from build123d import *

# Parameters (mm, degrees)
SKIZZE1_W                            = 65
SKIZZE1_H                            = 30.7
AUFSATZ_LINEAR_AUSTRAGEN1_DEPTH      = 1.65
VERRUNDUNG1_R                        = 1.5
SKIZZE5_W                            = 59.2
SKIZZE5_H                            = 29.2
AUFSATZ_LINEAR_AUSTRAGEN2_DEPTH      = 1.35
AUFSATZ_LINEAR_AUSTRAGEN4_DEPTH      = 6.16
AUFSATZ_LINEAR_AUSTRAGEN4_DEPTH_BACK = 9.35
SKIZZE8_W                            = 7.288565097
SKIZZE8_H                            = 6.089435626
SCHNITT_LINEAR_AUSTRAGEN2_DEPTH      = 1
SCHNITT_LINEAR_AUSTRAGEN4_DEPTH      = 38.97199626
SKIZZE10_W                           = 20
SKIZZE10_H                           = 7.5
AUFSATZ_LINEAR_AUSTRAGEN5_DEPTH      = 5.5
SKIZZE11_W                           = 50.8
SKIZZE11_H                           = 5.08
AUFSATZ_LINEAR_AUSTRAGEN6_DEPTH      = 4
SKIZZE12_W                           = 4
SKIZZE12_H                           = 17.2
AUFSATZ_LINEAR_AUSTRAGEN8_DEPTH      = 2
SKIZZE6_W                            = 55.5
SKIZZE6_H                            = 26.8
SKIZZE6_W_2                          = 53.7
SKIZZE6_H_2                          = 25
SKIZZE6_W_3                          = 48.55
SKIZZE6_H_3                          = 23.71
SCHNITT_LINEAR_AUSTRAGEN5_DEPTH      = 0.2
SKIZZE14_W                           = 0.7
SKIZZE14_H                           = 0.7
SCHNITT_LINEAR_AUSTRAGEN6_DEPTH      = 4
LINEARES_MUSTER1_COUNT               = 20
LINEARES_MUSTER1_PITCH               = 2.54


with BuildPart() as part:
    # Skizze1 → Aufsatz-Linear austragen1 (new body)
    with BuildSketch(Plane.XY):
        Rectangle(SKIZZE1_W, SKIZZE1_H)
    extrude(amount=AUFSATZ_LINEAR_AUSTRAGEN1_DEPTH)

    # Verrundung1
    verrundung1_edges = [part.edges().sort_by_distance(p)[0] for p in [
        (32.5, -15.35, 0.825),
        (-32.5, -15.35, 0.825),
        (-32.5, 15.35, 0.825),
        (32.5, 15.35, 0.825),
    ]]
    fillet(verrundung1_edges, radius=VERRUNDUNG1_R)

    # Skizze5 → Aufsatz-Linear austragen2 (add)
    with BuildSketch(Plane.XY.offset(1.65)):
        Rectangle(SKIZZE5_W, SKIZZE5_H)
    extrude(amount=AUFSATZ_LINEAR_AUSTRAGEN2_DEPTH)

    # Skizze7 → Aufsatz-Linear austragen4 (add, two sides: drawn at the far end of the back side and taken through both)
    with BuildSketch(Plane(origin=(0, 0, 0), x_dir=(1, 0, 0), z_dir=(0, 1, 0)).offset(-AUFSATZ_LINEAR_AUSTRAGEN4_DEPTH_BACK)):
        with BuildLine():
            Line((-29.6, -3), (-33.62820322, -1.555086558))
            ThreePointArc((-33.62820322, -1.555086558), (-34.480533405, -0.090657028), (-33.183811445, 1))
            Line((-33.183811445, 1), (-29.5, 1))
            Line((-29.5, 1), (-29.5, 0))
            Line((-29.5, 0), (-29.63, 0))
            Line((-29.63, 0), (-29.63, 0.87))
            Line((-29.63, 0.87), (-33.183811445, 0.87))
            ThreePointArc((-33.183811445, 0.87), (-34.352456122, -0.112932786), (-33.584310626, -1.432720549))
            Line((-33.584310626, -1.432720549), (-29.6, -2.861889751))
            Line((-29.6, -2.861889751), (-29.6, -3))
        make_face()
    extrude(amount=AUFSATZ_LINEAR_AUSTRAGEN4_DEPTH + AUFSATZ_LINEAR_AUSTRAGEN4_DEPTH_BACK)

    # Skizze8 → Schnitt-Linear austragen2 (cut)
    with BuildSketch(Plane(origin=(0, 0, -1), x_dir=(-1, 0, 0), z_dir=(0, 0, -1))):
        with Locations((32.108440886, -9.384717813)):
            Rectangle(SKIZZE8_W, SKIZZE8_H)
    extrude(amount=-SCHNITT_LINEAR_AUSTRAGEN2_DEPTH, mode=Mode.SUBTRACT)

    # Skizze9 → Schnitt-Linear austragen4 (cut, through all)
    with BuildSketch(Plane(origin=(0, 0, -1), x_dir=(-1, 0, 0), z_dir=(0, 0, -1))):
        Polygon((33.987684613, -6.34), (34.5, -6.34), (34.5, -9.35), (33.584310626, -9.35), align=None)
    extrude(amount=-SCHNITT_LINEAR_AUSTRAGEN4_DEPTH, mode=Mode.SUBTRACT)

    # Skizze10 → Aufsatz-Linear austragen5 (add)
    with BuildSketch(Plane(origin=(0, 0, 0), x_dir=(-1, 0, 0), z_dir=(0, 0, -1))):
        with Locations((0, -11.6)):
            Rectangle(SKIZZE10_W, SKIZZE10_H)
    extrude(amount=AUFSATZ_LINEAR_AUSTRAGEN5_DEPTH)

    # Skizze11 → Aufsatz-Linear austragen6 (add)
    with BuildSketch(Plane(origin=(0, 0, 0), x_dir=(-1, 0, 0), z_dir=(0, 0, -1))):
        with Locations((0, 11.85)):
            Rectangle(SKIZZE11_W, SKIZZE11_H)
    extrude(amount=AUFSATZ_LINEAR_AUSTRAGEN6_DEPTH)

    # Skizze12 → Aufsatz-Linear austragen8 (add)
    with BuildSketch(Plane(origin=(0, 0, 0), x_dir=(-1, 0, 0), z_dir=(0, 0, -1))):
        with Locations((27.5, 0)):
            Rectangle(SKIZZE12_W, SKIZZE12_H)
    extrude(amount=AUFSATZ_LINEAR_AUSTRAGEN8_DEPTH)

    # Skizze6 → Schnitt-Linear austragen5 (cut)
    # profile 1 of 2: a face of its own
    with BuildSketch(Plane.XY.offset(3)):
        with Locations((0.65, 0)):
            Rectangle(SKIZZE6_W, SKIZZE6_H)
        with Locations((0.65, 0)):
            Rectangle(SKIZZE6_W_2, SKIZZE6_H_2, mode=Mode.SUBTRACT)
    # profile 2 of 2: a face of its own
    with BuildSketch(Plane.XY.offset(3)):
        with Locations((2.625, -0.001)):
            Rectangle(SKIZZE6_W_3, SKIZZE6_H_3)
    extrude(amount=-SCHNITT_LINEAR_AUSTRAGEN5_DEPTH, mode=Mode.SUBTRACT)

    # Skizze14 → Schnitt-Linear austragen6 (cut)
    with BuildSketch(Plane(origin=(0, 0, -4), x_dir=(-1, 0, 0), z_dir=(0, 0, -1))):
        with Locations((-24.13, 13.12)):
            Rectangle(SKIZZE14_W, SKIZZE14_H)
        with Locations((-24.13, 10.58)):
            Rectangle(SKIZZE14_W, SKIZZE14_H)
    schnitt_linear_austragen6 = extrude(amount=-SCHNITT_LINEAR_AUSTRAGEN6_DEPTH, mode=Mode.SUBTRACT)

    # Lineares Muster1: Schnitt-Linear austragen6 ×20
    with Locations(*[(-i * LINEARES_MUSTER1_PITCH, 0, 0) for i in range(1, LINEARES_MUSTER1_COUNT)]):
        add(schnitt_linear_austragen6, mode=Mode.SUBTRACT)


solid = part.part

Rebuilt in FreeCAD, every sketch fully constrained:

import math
import FreeCAD as App
import Part
import Sketcher

V = App.Vector


def edges_at(feature, points):
    """Names of the edges that pass closest to the given points."""
    edges = feature.Shape.Edges
    near = lambda p: min(range(len(edges)), key=lambda i: edges[i].distToShape(Part.Vertex(*p))[0])
    return sorted({f"Edge{near(p) + 1}" for p in points})

doc = App.newDocument("Part")
body = doc.addObject("PartDesign::Body", "Body")

# Sketch on XY plane
sketch1 = body.newObject("Sketcher::SketchObject", "Sketch")
sketch1.AttachmentSupport = (doc.getObject("XY_Plane"), [""])
sketch1.MapMode = "FlatFace"
sketch1.addGeometry(Part.LineSegment(V(-32, 15, 0), V(-32, -15, 0)), False)
sketch1.addGeometry(Part.LineSegment(V(-32, -15, 0), V(32, -15, 0)), False)
sketch1.addGeometry(Part.LineSegment(V(32, -15, 0), V(32, 15, 0)), False)
sketch1.addGeometry(Part.LineSegment(V(32, 15, 0), V(-32, 15, 0)), False)
sketch1.addConstraint(Sketcher.Constraint("Coincident", 0, 2, 1, 1))
sketch1.addConstraint(Sketcher.Constraint("Coincident", 1, 2, 2, 1))
sketch1.addConstraint(Sketcher.Constraint("Coincident", 2, 2, 3, 1))
sketch1.addConstraint(Sketcher.Constraint("Coincident", 3, 2, 0, 1))
sketch1.addConstraint(Sketcher.Constraint("Vertical", 0))
sketch1.addConstraint(Sketcher.Constraint("Horizontal", 1))
sketch1.addConstraint(Sketcher.Constraint("Vertical", 2))
sketch1.addConstraint(Sketcher.Constraint("Horizontal", 3))
sketch1.addConstraint(Sketcher.Constraint("Symmetric", 0, 2, 2, 2, -1, 1))
sketch1.addConstraint(Sketcher.Constraint("DistanceX", 1, 1, 1, 2, 65.0))
sketch1.addConstraint(Sketcher.Constraint("DistanceY", 0, 2, 0, 1, 30.7))
pad1 = body.newObject("PartDesign::Pad", "Pad")
pad1.Profile = sketch1
pad1.Length = 1.65
doc.recompute()

fillet = body.newObject("PartDesign::Fillet", "Fillet")
fillet.Base = (pad1, edges_at(pad1, [
    (32.5, -15.35, 0.825),
    (-32.5, -15.35, 0.825),
    (-32.5, 15.35, 0.825),
    (32.5, 15.35, 0.825),
]))
fillet.Radius = 1.5

# Sketch on XY plane
sketch2 = body.newObject("Sketcher::SketchObject", "Sketch001")
sketch2.AttachmentSupport = (doc.getObject("XY_Plane"), [""])
sketch2.MapMode = "FlatFace"
sketch2.AttachmentOffset = App.Placement(V(0, 0, 1.65), App.Rotation())
sketch2.addGeometry(Part.LineSegment(V(-30, 15, 0), V(-30, -15, 0)), False)
sketch2.addGeometry(Part.LineSegment(V(-30, -15, 0), V(30, -15, 0)), False)
sketch2.addGeometry(Part.LineSegment(V(30, -15, 0), V(30, 15, 0)), False)
sketch2.addGeometry(Part.LineSegment(V(30, 15, 0), V(-30, 15, 0)), False)
sketch2.addConstraint(Sketcher.Constraint("Coincident", 0, 2, 1, 1))
sketch2.addConstraint(Sketcher.Constraint("Coincident", 1, 2, 2, 1))
sketch2.addConstraint(Sketcher.Constraint("Coincident", 2, 2, 3, 1))
sketch2.addConstraint(Sketcher.Constraint("Coincident", 3, 2, 0, 1))
sketch2.addConstraint(Sketcher.Constraint("Vertical", 0))
sketch2.addConstraint(Sketcher.Constraint("Horizontal", 1))
sketch2.addConstraint(Sketcher.Constraint("Vertical", 2))
sketch2.addConstraint(Sketcher.Constraint("Horizontal", 3))
sketch2.addConstraint(Sketcher.Constraint("Symmetric", 0, 2, 2, 2, -1, 1))
sketch2.addConstraint(Sketcher.Constraint("DistanceX", 1, 1, 1, 2, 59.2))
sketch2.addConstraint(Sketcher.Constraint("DistanceY", 0, 2, 0, 1, 29.2))
pad2 = body.newObject("PartDesign::Pad", "Pad001")
pad2.Profile = sketch2
pad2.Length = 1.35

# Sketch on XZ plane
sketch3 = body.newObject("Sketcher::SketchObject", "Sketch002")
sketch3.AttachmentSupport = (doc.getObject("XZ_Plane"), [""])
sketch3.MapMode = "FlatFace"
sketch3.addGeometry(Part.LineSegment(V(-33.63, 1.56, 0), V(-29.6, 3, 0)), False)
sketch3.addGeometry(Part.LineSegment(V(-29.6, 3, 0), V(-29.6, 2.86, 0)), False)
sketch3.addGeometry(Part.LineSegment(V(-29.6, 2.86, 0), V(-33.58, 1.43, 0)), False)
sketch3.addGeometry(Part.ArcOfCircle(Part.Circle(V(-33.18, 0.32, 0), V(0, 0, 1), 1.19), math.radians(110), math.radians(270)), False)
sketch3.addGeometry(Part.LineSegment(V(-33.18, -0.87, 0), V(-29.63, -0.87, 0)), False)
sketch3.addGeometry(Part.LineSegment(V(-29.63, -0.87, 0), V(-29.63, 0, 0)), False)
sketch3.addGeometry(Part.LineSegment(V(-29.63, 0, 0), V(-29.5, 0, 0)), False)
sketch3.addGeometry(Part.LineSegment(V(-29.5, 0, 0), V(-29.5, -1, 0)), False)
sketch3.addGeometry(Part.LineSegment(V(-29.5, -1, 0), V(-33.18, -1, 0)), False)
sketch3.addGeometry(Part.ArcOfCircle(Part.Circle(V(-33.18, 0.32, 0), V(0, 0, 1), 1.32), math.radians(110), math.radians(270)), False)
sketch3.addConstraint(Sketcher.Constraint("Coincident", 0, 2, 1, 1))
sketch3.addConstraint(Sketcher.Constraint("Coincident", 1, 2, 2, 1))
sketch3.addConstraint(Sketcher.Constraint("Tangent", 2, 2, 3, 1))
sketch3.addConstraint(Sketcher.Constraint("Tangent", 3, 2, 4, 1))
sketch3.addConstraint(Sketcher.Constraint("Coincident", 4, 2, 5, 1))
sketch3.addConstraint(Sketcher.Constraint("Coincident", 5, 2, 6, 1))
sketch3.addConstraint(Sketcher.Constraint("Coincident", 6, 2, 7, 1))
sketch3.addConstraint(Sketcher.Constraint("Coincident", 7, 2, 8, 1))
sketch3.addConstraint(Sketcher.Constraint("Tangent", 8, 2, 9, 2))
sketch3.addConstraint(Sketcher.Constraint("Tangent", 9, 1, 0, 1))
sketch3.addConstraint(Sketcher.Constraint("Vertical", 1))
sketch3.addConstraint(Sketcher.Constraint("Horizontal", 4))
sketch3.addConstraint(Sketcher.Constraint("Vertical", 5))
sketch3.addConstraint(Sketcher.Constraint("Horizontal", 6))
sketch3.addConstraint(Sketcher.Constraint("Vertical", 7))
sketch3.addConstraint(Sketcher.Constraint("Horizontal", 8))
sketch3.addConstraint(Sketcher.Constraint("Coincident", 9, 3, 3, 3))
sketch3.addConstraint(Sketcher.Constraint("PointOnObject", 5, 2, -1))
sketch3.addConstraint(Sketcher.Constraint("Parallel", 0, 2))
sketch3.addConstraint(Sketcher.Constraint("DistanceY", 7, 2, 7, 1, 1.0))
sketch3.addConstraint(Sketcher.Constraint("DistanceY", -1, 1, 0, 2, 3.0))
sketch3.addConstraint(Sketcher.Constraint("DistanceX", 6, 1, 6, 2, 0.13))
sketch3.addConstraint(Sketcher.Constraint("DistanceY", 5, 1, 5, 2, 0.87))
sketch3.addConstraint(Sketcher.Constraint("DistanceX", 0, 2, -1, 1, 29.6))
sketch3.addConstraint(Sketcher.Constraint("DistanceX", 6, 2, -1, 1, 29.5))
sketch3.addConstraint(Sketcher.Constraint("Radius", 3, 1.186189))
sketch3.addConstraint(Sketcher.Constraint("DistanceX", 4, 1, 4, 2, 3.553811))
pad3 = body.newObject("PartDesign::Pad", "Pad002")
pad3.Profile = sketch3
pad3.Type = "TwoLengths"
pad3.Length = 6.16
pad3.Length2 = 9.35
pad3.Reversed = True

# Sketch on XY plane
sketch4 = body.newObject("Sketcher::SketchObject", "Sketch003")
sketch4.AttachmentSupport = (doc.getObject("XY_Plane"), [""])
sketch4.MapMode = "FlatFace"
sketch4.AttachmentOffset = App.Placement(V(0, 0, -1), App.Rotation())
sketch4.addGeometry(Part.LineSegment(V(-28, -6, 0), V(-28, -12, 0)), False)
sketch4.addGeometry(Part.LineSegment(V(-28, -12, 0), V(-36, -12, 0)), False)
sketch4.addGeometry(Part.LineSegment(V(-36, -12, 0), V(-36, -6, 0)), False)
sketch4.addGeometry(Part.LineSegment(V(-36, -6, 0), V(-28, -6, 0)), False)
sketch4.addConstraint(Sketcher.Constraint("Coincident", 0, 2, 1, 1))
sketch4.addConstraint(Sketcher.Constraint("Coincident", 1, 2, 2, 1))
sketch4.addConstraint(Sketcher.Constraint("Coincident", 2, 2, 3, 1))
sketch4.addConstraint(Sketcher.Constraint("Coincident", 3, 2, 0, 1))
sketch4.addConstraint(Sketcher.Constraint("Vertical", 0))
sketch4.addConstraint(Sketcher.Constraint("Horizontal", 1))
sketch4.addConstraint(Sketcher.Constraint("Vertical", 2))
sketch4.addConstraint(Sketcher.Constraint("Horizontal", 3))
sketch4.addConstraint(Sketcher.Constraint("DistanceY", 2, 2, -1, 1, 6.34))
sketch4.addConstraint(Sketcher.Constraint("DistanceX", 1, 2, 1, 1, 7.288565))
sketch4.addConstraint(Sketcher.Constraint("DistanceY", 0, 2, 0, 1, 6.089436))
sketch4.addConstraint(Sketcher.Constraint("DistanceX", 0, 2, -1, 1, 28.464158))
pocket1 = body.newObject("PartDesign::Pocket", "Pocket")
pocket1.Profile = sketch4
pocket1.Length = 1
pocket1.Reversed = True

# Sketch on XY plane
sketch5 = body.newObject("Sketcher::SketchObject", "Sketch004")
sketch5.AttachmentSupport = (doc.getObject("XY_Plane"), [""])
sketch5.MapMode = "FlatFace"
sketch5.AttachmentOffset = App.Placement(V(0, 0, -1), App.Rotation())
sketch5.addGeometry(Part.LineSegment(V(-34.5, -6.3, 0), V(-34, -6.3, 0)), False)
sketch5.addGeometry(Part.LineSegment(V(-34, -6.3, 0), V(-33.6, -9.3, 0)), False)
sketch5.addGeometry(Part.LineSegment(V(-33.6, -9.3, 0), V(-34.5, -9.3, 0)), False)
sketch5.addGeometry(Part.LineSegment(V(-34.5, -9.3, 0), V(-34.5, -6.3, 0)), False)
sketch5.addConstraint(Sketcher.Constraint("Coincident", 0, 2, 1, 1))
sketch5.addConstraint(Sketcher.Constraint("Coincident", 1, 2, 2, 1))
sketch5.addConstraint(Sketcher.Constraint("Coincident", 2, 2, 3, 1))
sketch5.addConstraint(Sketcher.Constraint("Coincident", 3, 2, 0, 1))
sketch5.addConstraint(Sketcher.Constraint("Horizontal", 0))
sketch5.addConstraint(Sketcher.Constraint("Horizontal", 2))
sketch5.addConstraint(Sketcher.Constraint("Vertical", 3))
sketch5.addConstraint(Sketcher.Constraint("DistanceY", 3, 1, 3, 2, 3.01))
sketch5.addConstraint(Sketcher.Constraint("DistanceX", 2, 2, -1, 1, 34.5))
sketch5.addConstraint(Sketcher.Constraint("DistanceY", 0, 2, -1, 1, 6.34))
sketch5.addConstraint(Sketcher.Constraint("DistanceX", 2, 2, 2, 1, 0.915689))
sketch5.addConstraint(Sketcher.Constraint("Distance", 1, 3.036908))
pocket2 = body.newObject("PartDesign::Pocket", "Pocket001")
pocket2.Profile = sketch5
pocket2.Type = "ThroughAll"
pocket2.Reversed = True

# Sketch on XY plane
sketch6 = body.newObject("Sketcher::SketchObject", "Sketch005")
sketch6.AttachmentSupport = (doc.getObject("XY_Plane"), [""])
sketch6.MapMode = "FlatFace"
sketch6.addGeometry(Part.LineSegment(V(10, -8, 0), V(10, -15, 0)), False)
sketch6.addGeometry(Part.LineSegment(V(10, -15, 0), V(-10, -15, 0)), False)
sketch6.addGeometry(Part.LineSegment(V(-10, -15, 0), V(-10, -8, 0)), False)
sketch6.addGeometry(Part.LineSegment(V(-10, -8, 0), V(10, -8, 0)), False)
sketch6.addConstraint(Sketcher.Constraint("Coincident", 0, 2, 1, 1))
sketch6.addConstraint(Sketcher.Constraint("Coincident", 1, 2, 2, 1))
sketch6.addConstraint(Sketcher.Constraint("Coincident", 2, 2, 3, 1))
sketch6.addConstraint(Sketcher.Constraint("Coincident", 3, 2, 0, 1))
sketch6.addConstraint(Sketcher.Constraint("Vertical", 0))
sketch6.addConstraint(Sketcher.Constraint("Horizontal", 1))
sketch6.addConstraint(Sketcher.Constraint("Vertical", 2))
sketch6.addConstraint(Sketcher.Constraint("Horizontal", 3))
sketch6.addConstraint(Sketcher.Constraint("DistanceX", 1, 2, 1, 1, 20.0))
sketch6.addConstraint(Sketcher.Constraint("DistanceY", 0, 2, 0, 1, 7.5))
sketch6.addConstraint(Sketcher.Constraint("DistanceX", -1, 1, 0, 2, 10.0))
sketch6.addConstraint(Sketcher.Constraint("DistanceY", 0, 2, -1, 1, 15.35))
pad4 = body.newObject("PartDesign::Pad", "Pad003")
pad4.Profile = sketch6
pad4.Length = 5.5
pad4.Reversed = True

# Sketch on XY plane
sketch7 = body.newObject("Sketcher::SketchObject", "Sketch006")
sketch7.AttachmentSupport = (doc.getObject("XY_Plane"), [""])
sketch7.MapMode = "FlatFace"
sketch7.addGeometry(Part.LineSegment(V(25, 14, 0), V(25, 9, 0)), False)
sketch7.addGeometry(Part.LineSegment(V(25, 9, 0), V(-25, 9, 0)), False)
sketch7.addGeometry(Part.LineSegment(V(-25, 9, 0), V(-25, 14, 0)), False)
sketch7.addGeometry(Part.LineSegment(V(-25, 14, 0), V(25, 14, 0)), False)
sketch7.addConstraint(Sketcher.Constraint("Coincident", 0, 2, 1, 1))
sketch7.addConstraint(Sketcher.Constraint("Coincident", 1, 2, 2, 1))
sketch7.addConstraint(Sketcher.Constraint("Coincident", 2, 2, 3, 1))
sketch7.addConstraint(Sketcher.Constraint("Coincident", 3, 2, 0, 1))
sketch7.addConstraint(Sketcher.Constraint("Vertical", 0))
sketch7.addConstraint(Sketcher.Constraint("Horizontal", 1))
sketch7.addConstraint(Sketcher.Constraint("Vertical", 2))
sketch7.addConstraint(Sketcher.Constraint("Horizontal", 3))
sketch7.addConstraint(Sketcher.Constraint("DistanceX", 1, 2, 1, 1, 50.8))
sketch7.addConstraint(Sketcher.Constraint("DistanceY", 0, 2, 0, 1, 5.08))
sketch7.addConstraint(Sketcher.Constraint("DistanceX", -1, 1, 0, 2, 25.4))
sketch7.addConstraint(Sketcher.Constraint("DistanceY", -1, 1, 0, 2, 9.31))
pad5 = body.newObject("PartDesign::Pad", "Pad004")
pad5.Profile = sketch7
pad5.Length = 4
pad5.Reversed = True

# Sketch on XY plane
sketch8 = body.newObject("Sketcher::SketchObject", "Sketch007")
sketch8.AttachmentSupport = (doc.getObject("XY_Plane"), [""])
sketch8.MapMode = "FlatFace"
sketch8.addGeometry(Part.LineSegment(V(-25.5, 8.6, 0), V(-25.5, -8.6, 0)), False)
sketch8.addGeometry(Part.LineSegment(V(-25.5, -8.6, 0), V(-29.5, -8.6, 0)), False)
sketch8.addGeometry(Part.LineSegment(V(-29.5, -8.6, 0), V(-29.5, 8.6, 0)), False)
sketch8.addGeometry(Part.LineSegment(V(-29.5, 8.6, 0), V(-25.5, 8.6, 0)), False)
sketch8.addConstraint(Sketcher.Constraint("Coincident", 0, 2, 1, 1))
sketch8.addConstraint(Sketcher.Constraint("Coincident", 1, 2, 2, 1))
sketch8.addConstraint(Sketcher.Constraint("Coincident", 2, 2, 3, 1))
sketch8.addConstraint(Sketcher.Constraint("Coincident", 3, 2, 0, 1))
sketch8.addConstraint(Sketcher.Constraint("Vertical", 0))
sketch8.addConstraint(Sketcher.Constraint("Horizontal", 1))
sketch8.addConstraint(Sketcher.Constraint("Vertical", 2))
sketch8.addConstraint(Sketcher.Constraint("Horizontal", 3))
sketch8.addConstraint(Sketcher.Constraint("DistanceX", 1, 2, 1, 1, 4.0))
sketch8.addConstraint(Sketcher.Constraint("DistanceY", 0, 2, 0, 1, 17.2))
sketch8.addConstraint(Sketcher.Constraint("DistanceX", 0, 2, -1, 1, 25.5))
sketch8.addConstraint(Sketcher.Constraint("DistanceY", 0, 2, -1, 1, 8.6))
pad6 = body.newObject("PartDesign::Pad", "Pad005")
pad6.Profile = sketch8
pad6.Length = 2
pad6.Reversed = True

# Sketch on XY plane
sketch9 = body.newObject("Sketcher::SketchObject", "Sketch008")
sketch9.AttachmentSupport = (doc.getObject("XY_Plane"), [""])
sketch9.MapMode = "FlatFace"
sketch9.AttachmentOffset = App.Placement(V(0, 0, 3), App.Rotation())
sketch9.addGeometry(Part.LineSegment(V(-27, 13, 0), V(-27, -13, 0)), False)
sketch9.addGeometry(Part.LineSegment(V(-27, -13, 0), V(28, -13, 0)), False)
sketch9.addGeometry(Part.LineSegment(V(28, -13, 0), V(28, 13, 0)), False)
sketch9.addGeometry(Part.LineSegment(V(28, 13, 0), V(-27, 13, 0)), False)
sketch9.addGeometry(Part.LineSegment(V(28, -12, 0), V(-26, -12, 0)), False)
sketch9.addGeometry(Part.LineSegment(V(-26, -12, 0), V(-26, 12, 0)), False)
sketch9.addGeometry(Part.LineSegment(V(-26, 12, 0), V(28, 12, 0)), False)
sketch9.addGeometry(Part.LineSegment(V(28, 12, 0), V(28, -12, 0)), False)
sketch9.addGeometry(Part.LineSegment(V(-22, 12, 0), V(-22, -12, 0)), False)
sketch9.addGeometry(Part.LineSegment(V(-22, -12, 0), V(27, -12, 0)), False)
sketch9.addGeometry(Part.LineSegment(V(27, -12, 0), V(27, 12, 0)), False)
sketch9.addGeometry(Part.LineSegment(V(27, 12, 0), V(-22, 12, 0)), False)
sketch9.addConstraint(Sketcher.Constraint("Coincident", 0, 2, 1, 1))
sketch9.addConstraint(Sketcher.Constraint("Coincident", 1, 2, 2, 1))
sketch9.addConstraint(Sketcher.Constraint("Coincident", 2, 2, 3, 1))
sketch9.addConstraint(Sketcher.Constraint("Coincident", 3, 2, 0, 1))
sketch9.addConstraint(Sketcher.Constraint("Coincident", 4, 2, 5, 1))
sketch9.addConstraint(Sketcher.Constraint("Coincident", 5, 2, 6, 1))
sketch9.addConstraint(Sketcher.Constraint("Coincident", 6, 2, 7, 1))
sketch9.addConstraint(Sketcher.Constraint("Coincident", 7, 2, 4, 1))
sketch9.addConstraint(Sketcher.Constraint("Coincident", 8, 2, 9, 1))
sketch9.addConstraint(Sketcher.Constraint("Coincident", 9, 2, 10, 1))
sketch9.addConstraint(Sketcher.Constraint("Coincident", 10, 2, 11, 1))
sketch9.addConstraint(Sketcher.Constraint("Coincident", 11, 2, 8, 1))
sketch9.addConstraint(Sketcher.Constraint("Vertical", 0))
sketch9.addConstraint(Sketcher.Constraint("Horizontal", 1))
sketch9.addConstraint(Sketcher.Constraint("Vertical", 2))
sketch9.addConstraint(Sketcher.Constraint("Horizontal", 3))
sketch9.addConstraint(Sketcher.Constraint("Horizontal", 4))
sketch9.addConstraint(Sketcher.Constraint("Vertical", 5))
sketch9.addConstraint(Sketcher.Constraint("Horizontal", 6))
sketch9.addConstraint(Sketcher.Constraint("Vertical", 7))
sketch9.addConstraint(Sketcher.Constraint("Vertical", 8))
sketch9.addConstraint(Sketcher.Constraint("Horizontal", 9))
sketch9.addConstraint(Sketcher.Constraint("Vertical", 10))
sketch9.addConstraint(Sketcher.Constraint("Horizontal", 11))
sketch9.addConstraint(Sketcher.Constraint("DistanceY", 5, 1, 5, 2, 25.0))
sketch9.addConstraint(Sketcher.Constraint("DistanceX", 1, 1, 1, 2, 55.5))
sketch9.addConstraint(Sketcher.Constraint("DistanceX", 4, 2, 4, 1, 53.7))
sketch9.addConstraint(Sketcher.Constraint("DistanceY", 0, 2, 0, 1, 26.8))
sketch9.addConstraint(Sketcher.Constraint("DistanceX", 9, 1, 9, 2, 48.55))
sketch9.addConstraint(Sketcher.Constraint("DistanceY", 8, 2, 8, 1, 23.71))
sketch9.addConstraint(Sketcher.Constraint("DistanceX", 0, 2, -1, 1, 27.1))
sketch9.addConstraint(Sketcher.Constraint("DistanceY", 0, 2, -1, 1, 13.4))
sketch9.addConstraint(Sketcher.Constraint("DistanceX", 4, 2, -1, 1, 26.2))
sketch9.addConstraint(Sketcher.Constraint("DistanceY", 4, 2, -1, 1, 12.5))
sketch9.addConstraint(Sketcher.Constraint("DistanceX", -1, 1, 9, 2, 26.9))
sketch9.addConstraint(Sketcher.Constraint("DistanceY", 8, 2, -1, 1, 11.856))
pocket3 = body.newObject("PartDesign::Pocket", "Pocket002")
pocket3.Profile = sketch9
pocket3.Length = 0.2

# Sketch on XY plane
sketch10 = body.newObject("Sketcher::SketchObject", "Sketch009")
sketch10.AttachmentSupport = (doc.getObject("XY_Plane"), [""])
sketch10.MapMode = "FlatFace"
sketch10.AttachmentOffset = App.Placement(V(0, 0, -4), App.Rotation())
sketch10.addGeometry(Part.LineSegment(V(24.5, 13.5, 0), V(24.5, 12.8, 0)), False)
sketch10.addGeometry(Part.LineSegment(V(24.5, 12.8, 0), V(23.8, 12.8, 0)), False)
sketch10.addGeometry(Part.LineSegment(V(23.8, 12.8, 0), V(23.8, 13.5, 0)), False)
sketch10.addGeometry(Part.LineSegment(V(23.8, 13.5, 0), V(24.5, 13.5, 0)), False)
sketch10.addGeometry(Part.LineSegment(V(24.5, 10.9, 0), V(24.5, 10.2, 0)), False)
sketch10.addGeometry(Part.LineSegment(V(24.5, 10.2, 0), V(23.8, 10.2, 0)), False)
sketch10.addGeometry(Part.LineSegment(V(23.8, 10.2, 0), V(23.8, 10.9, 0)), False)
sketch10.addGeometry(Part.LineSegment(V(23.8, 10.9, 0), V(24.5, 10.9, 0)), False)
sketch10.addConstraint(Sketcher.Constraint("Coincident", 0, 2, 1, 1))
sketch10.addConstraint(Sketcher.Constraint("Coincident", 1, 2, 2, 1))
sketch10.addConstraint(Sketcher.Constraint("Coincident", 2, 2, 3, 1))
sketch10.addConstraint(Sketcher.Constraint("Coincident", 3, 2, 0, 1))
sketch10.addConstraint(Sketcher.Constraint("Coincident", 4, 2, 5, 1))
sketch10.addConstraint(Sketcher.Constraint("Coincident", 5, 2, 6, 1))
sketch10.addConstraint(Sketcher.Constraint("Coincident", 6, 2, 7, 1))
sketch10.addConstraint(Sketcher.Constraint("Coincident", 7, 2, 4, 1))
sketch10.addConstraint(Sketcher.Constraint("Vertical", 0))
sketch10.addConstraint(Sketcher.Constraint("Horizontal", 1))
sketch10.addConstraint(Sketcher.Constraint("Vertical", 2))
sketch10.addConstraint(Sketcher.Constraint("Horizontal", 3))
sketch10.addConstraint(Sketcher.Constraint("Vertical", 4))
sketch10.addConstraint(Sketcher.Constraint("Horizontal", 5))
sketch10.addConstraint(Sketcher.Constraint("Vertical", 6))
sketch10.addConstraint(Sketcher.Constraint("Horizontal", 7))
sketch10.addConstraint(Sketcher.Constraint("Vertical", 3, 2, 4, 2))
sketch10.addConstraint(Sketcher.Constraint("Vertical", 2, 2, 5, 2))
sketch10.addConstraint(Sketcher.Constraint("Equal", 7, 0))
sketch10.addConstraint(Sketcher.Constraint("Equal", 2, 4))
sketch10.addConstraint(Sketcher.Constraint("DistanceX", 1, 2, 1, 1, 0.7))
sketch10.addConstraint(Sketcher.Constraint("DistanceX", -1, 1, 0, 2, 24.48))
sketch10.addConstraint(Sketcher.Constraint("DistanceY", -1, 1, 0, 2, 12.77))
sketch10.addConstraint(Sketcher.Constraint("DistanceY", -1, 1, 4, 2, 10.23))
pocket4 = body.newObject("PartDesign::Pocket", "Pocket003")
pocket4.Profile = sketch10
pocket4.Length = 4
pocket4.Reversed = True
doc.recompute()

linearpattern = body.newObject("PartDesign::LinearPattern", "LinearPattern")
linearpattern.Originals = [pocket4]
linearpattern.Direction = (doc.getObject("X_Axis"), [""])
linearpattern.Mode = "offset"
linearpattern.Offset = 2.54
linearpattern.Occurrences = 20
linearpattern.Reversed = True
body.Tip = linearpattern

doc.recompute()
